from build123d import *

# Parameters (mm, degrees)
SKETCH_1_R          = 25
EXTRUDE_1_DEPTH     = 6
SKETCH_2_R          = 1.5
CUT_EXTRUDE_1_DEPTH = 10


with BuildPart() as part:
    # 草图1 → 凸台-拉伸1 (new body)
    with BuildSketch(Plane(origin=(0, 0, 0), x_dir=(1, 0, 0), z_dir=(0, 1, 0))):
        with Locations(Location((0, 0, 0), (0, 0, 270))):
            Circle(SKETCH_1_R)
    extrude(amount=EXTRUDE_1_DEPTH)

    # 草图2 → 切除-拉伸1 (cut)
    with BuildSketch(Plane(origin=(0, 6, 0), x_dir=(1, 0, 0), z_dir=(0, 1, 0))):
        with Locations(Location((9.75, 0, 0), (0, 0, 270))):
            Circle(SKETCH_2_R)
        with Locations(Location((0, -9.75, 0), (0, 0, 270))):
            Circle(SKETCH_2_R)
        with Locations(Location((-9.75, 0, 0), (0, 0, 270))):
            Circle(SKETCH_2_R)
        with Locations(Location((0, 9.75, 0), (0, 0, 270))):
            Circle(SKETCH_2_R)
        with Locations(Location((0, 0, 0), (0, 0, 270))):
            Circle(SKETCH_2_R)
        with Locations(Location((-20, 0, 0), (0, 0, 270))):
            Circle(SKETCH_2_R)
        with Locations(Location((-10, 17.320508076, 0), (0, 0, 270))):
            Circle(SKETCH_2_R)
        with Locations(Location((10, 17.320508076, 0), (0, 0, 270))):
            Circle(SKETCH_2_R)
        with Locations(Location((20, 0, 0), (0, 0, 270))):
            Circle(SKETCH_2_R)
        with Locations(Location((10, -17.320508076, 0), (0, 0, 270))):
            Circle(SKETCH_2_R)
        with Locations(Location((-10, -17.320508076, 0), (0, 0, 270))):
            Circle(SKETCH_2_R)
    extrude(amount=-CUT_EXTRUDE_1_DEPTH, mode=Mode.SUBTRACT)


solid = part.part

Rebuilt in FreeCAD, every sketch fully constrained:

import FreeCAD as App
import Part
import Sketcher
Q = App.Units.Quantity

doc = App.newDocument("Part")
body = doc.addObject("PartDesign::Body", "Body")

# Sketch on XZ plane
sketch1 = doc.addObject("Sketcher::SketchObject", "Sketch")
body.addObject(sketch1)
sketch1.AttachmentSupport = (doc.XZ_Plane, [""])
sketch1.MapMode = "FlatFace"
sketch1.addGeometry(Part.Circle(App.Vector(0, 0, 0), App.Vector(0, 0, 1), 25), False)
sketch1.addConstraint([
    Sketcher.Constraint("Coincident", 0, 3, -1, 1),
    Sketcher.Constraint("Diameter", 0, Q("50 mm")),
])
pad1 = doc.addObject("PartDesign::Pad", "Pad")
body.addObject(pad1)
pad1.Profile = sketch1
pad1.Length = 6
pad1.Reversed = True

# Sketch on XZ plane
sketch2 = doc.addObject("Sketcher::SketchObject", "Sketch001")
body.addObject(sketch2)
sketch2.AttachmentSupport = (doc.XZ_Plane, [""])
sketch2.MapMode = "FlatFace"
sketch2.AttachmentOffset = App.Placement(App.Vector(0, 0, -6), App.Rotation())
sketch2.addGeometry([
    Part.Circle(App.Vector(9.8, 0, 0), App.Vector(0, 0, 1), 1.5),  # 0
    Part.Circle(App.Vector(0, 9.8, 0), App.Vector(0, 0, 1), 1.5),  # 1
    Part.Circle(App.Vector(-9.8, 0, 0), App.Vector(0, 0, 1), 1.5),  # 2
    Part.Circle(App.Vector(0, -9.8, 0), App.Vector(0, 0, 1), 1.5),  # 3
    Part.Circle(App.Vector(0, 0, 0), App.Vector(0, 0, 1), 1.5),  # 4
    Part.Circle(App.Vector(-20, 0, 0), App.Vector(0, 0, 1), 1.5),  # 5
    Part.Circle(App.Vector(-10, -17.3, 0), App.Vector(0, 0, 1), 1.5),  # 6
    Part.Circle(App.Vector(10, -17.3, 0), App.Vector(0, 0, 1), 1.5),  # 7
    Part.Circle(App.Vector(20, 0, 0), App.Vector(0, 0, 1), 1.5),  # 8
    Part.Circle(App.Vector(10, 17.3, 0), App.Vector(0, 0, 1), 1.5),  # 9
    Part.Circle(App.Vector(-10, 17.3, 0), App.Vector(0, 0, 1), 1.5),  # 10
], False)
sketch2.addConstraint([
    Sketcher.Constraint("Coincident", 4, 3, -1, 1),
    Sketcher.Constraint("Equal", 0, 1),
    Sketcher.Constraint("Equal", 1, 2),
    Sketcher.Constraint("Equal", 2, 3),
    Sketcher.Constraint("Equal", 3, 4),
    Sketcher.Constraint("Equal", 4, 5),
    Sketcher.Constraint("Equal", 5, 6),
    Sketcher.Constraint("Equal", 6, 7),
    Sketcher.Constraint("Equal", 7, 8),
    Sketcher.Constraint("Equal", 8, 9),
    Sketcher.Constraint("Equal", 9, 10),
    Sketcher.Constraint("Symmetric", 0, 3, 2, 3, -1, 1),
    Sketcher.Constraint("Symmetric", 1, 3, 3, 3, -1, 1),
    Sketcher.Constraint("Symmetric", 5, 3, 8, 3, -1, 1),
    Sketcher.Constraint("Symmetric", 6, 3, 9, 3, -1, 1),
    Sketcher.Constraint("Symmetric", 7, 3, 10, 3, -1, 1),
    Sketcher.Constraint("Symmetric", 6, 3, 7, 3, -2),
    Sketcher.Constraint("PointOnObject", 0, 3, -1),
    Sketcher.Constraint("PointOnObject", 1, 3, -2),
    Sketcher.Constraint("PointOnObject", 5, 3, -1),
    Sketcher.Constraint("Diameter", 0, Q("3 mm")),
    Sketcher.Constraint("DistanceX", 5, 3, -1, 1, Q("20 mm")),
    Sketcher.Constraint("DistanceX", 6, 3, -1, 1, Q("10 mm")),
    Sketcher.Constraint("DistanceX", 2, 3, 0, 3, Q("19.5 mm")),
    Sketcher.Constraint("DistanceY", 3, 3, 1, 3, Q("19.5 mm")),
    Sketcher.Constraint("DistanceY", 6, 3, -1, 1, Q("17.320508 mm")),
])
pocket1 = doc.addObject("PartDesign::Pocket", "Pocket")
body.addObject(pocket1)
pocket1.Profile = sketch2
pocket1.Length = 10
pocket1.Reversed = True

doc.recompute()
